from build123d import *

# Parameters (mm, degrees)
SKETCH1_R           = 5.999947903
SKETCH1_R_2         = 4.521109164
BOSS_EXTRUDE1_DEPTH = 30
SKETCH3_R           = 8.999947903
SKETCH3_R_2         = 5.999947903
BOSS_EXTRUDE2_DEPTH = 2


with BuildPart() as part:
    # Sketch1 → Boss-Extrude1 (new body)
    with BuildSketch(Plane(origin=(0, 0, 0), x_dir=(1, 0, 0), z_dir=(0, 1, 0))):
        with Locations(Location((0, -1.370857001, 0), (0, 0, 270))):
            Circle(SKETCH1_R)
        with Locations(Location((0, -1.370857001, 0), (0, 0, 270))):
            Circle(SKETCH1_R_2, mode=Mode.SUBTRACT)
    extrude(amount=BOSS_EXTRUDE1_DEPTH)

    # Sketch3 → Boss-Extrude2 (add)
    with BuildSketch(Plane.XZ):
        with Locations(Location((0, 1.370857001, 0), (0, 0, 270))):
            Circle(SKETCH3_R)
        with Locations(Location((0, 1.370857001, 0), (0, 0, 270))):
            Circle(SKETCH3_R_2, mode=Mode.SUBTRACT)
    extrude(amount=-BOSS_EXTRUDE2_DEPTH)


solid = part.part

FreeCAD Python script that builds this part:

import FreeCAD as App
import Part
import Sketcher

V = App.Vector

doc = App.newDocument("Part")
body = doc.addObject("PartDesign::Body", "Body")

# Sketch on XZ plane
sketch1 = body.newObject("Sketcher::SketchObject", "Sketch")
sketch1.AttachmentSupport = (doc.getObject("XZ_Plane"), [""])
sketch1.MapMode = "FlatFace"
sketch1.addGeometry(Part.Circle(V(0, 1.4, 0), V(0, 0, 1), 6), False)
sketch1.addGeometry(Part.Circle(V(0, 1.4, 0), V(0, 0, 1), 4.5), False)
sketch1.addConstraint(Sketcher.Constraint("Coincident", 1, 3, 0, 3))
sketch1.addConstraint(Sketcher.Constraint("PointOnObject", 0, 3, -2))
sketch1.addConstraint(Sketcher.Constraint("Diameter", 1, 9.042218))
sketch1.addConstraint(Sketcher.Constraint("Diameter", 0, 11.999896))
sketch1.addConstraint(Sketcher.Constraint("DistanceY", -1, 1, 0, 3, 1.370857))
pad1 = body.newObject("PartDesign::Pad", "Pad")
pad1.Profile = sketch1
pad1.Length = 30
pad1.Reversed = True

# Sketch on XZ plane
sketch2 = body.newObject("Sketcher::SketchObject", "Sketch001")
sketch2.AttachmentSupport = (doc.getObject("XZ_Plane"), [""])
sketch2.MapMode = "FlatFace"
sketch2.addGeometry(Part.Circle(V(0, 1, 0), V(0, 0, 1), 9), False)
sketch2.addGeometry(Part.Circle(V(0, 1, 0), V(0, 0, 1), 6), False)
sketch2.addConstraint(Sketcher.Constraint("Coincident", 1, 3, 0, 3))
sketch2.addConstraint(Sketcher.Constraint("PointOnObject", 0, 3, -2))
sketch2.addConstraint(Sketcher.Constraint("Diameter", 0, 17.999896))
sketch2.addConstraint(Sketcher.Constraint("Diameter", 1, 11.999896))
sketch2.addConstraint(Sketcher.Constraint("DistanceY", -1, 1, 0, 3, 1.370857))
pad2 = body.newObject("PartDesign::Pad", "Pad001")
pad2.Profile = sketch2
pad2.Length = 2
pad2.Reversed = True

doc.recompute()
